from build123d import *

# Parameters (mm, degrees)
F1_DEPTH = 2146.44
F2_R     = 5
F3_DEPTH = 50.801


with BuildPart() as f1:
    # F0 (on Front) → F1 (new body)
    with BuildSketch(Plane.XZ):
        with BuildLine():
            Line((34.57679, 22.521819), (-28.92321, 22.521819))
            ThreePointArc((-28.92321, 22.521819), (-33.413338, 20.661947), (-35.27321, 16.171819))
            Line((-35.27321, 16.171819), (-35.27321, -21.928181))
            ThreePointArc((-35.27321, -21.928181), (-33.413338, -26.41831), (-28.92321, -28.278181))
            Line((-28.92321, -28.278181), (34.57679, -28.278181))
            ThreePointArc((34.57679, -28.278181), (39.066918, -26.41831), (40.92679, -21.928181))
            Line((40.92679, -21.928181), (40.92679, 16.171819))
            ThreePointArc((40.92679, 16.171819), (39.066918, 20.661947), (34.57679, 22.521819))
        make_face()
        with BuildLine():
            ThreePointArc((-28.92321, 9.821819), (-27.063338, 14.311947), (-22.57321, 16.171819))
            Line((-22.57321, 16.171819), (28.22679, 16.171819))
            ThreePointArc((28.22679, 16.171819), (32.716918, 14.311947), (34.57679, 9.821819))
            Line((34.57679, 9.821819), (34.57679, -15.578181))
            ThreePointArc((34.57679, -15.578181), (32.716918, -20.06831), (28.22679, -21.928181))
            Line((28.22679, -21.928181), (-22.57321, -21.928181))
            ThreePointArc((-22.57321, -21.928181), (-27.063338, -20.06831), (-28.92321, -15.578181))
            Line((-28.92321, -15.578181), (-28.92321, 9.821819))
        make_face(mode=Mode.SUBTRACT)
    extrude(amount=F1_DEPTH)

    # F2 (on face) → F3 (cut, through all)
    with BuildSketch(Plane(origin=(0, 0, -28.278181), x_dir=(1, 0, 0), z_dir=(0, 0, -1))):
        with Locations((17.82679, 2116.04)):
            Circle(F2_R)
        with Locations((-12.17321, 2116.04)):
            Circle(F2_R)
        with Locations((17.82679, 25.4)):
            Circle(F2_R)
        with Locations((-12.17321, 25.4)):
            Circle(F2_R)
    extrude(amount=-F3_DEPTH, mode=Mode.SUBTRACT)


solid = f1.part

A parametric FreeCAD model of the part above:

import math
import FreeCAD as App
import Part
import Sketcher
Q = App.Units.Quantity

doc = App.newDocument("Part")
body = doc.addObject("PartDesign::Body", "Body")

sketch1 = body.newObject("Sketcher::SketchObject", "Sketch")
sketch1.AttachmentSupport = (doc.getObject("XZ_Plane"), [""])
sketch1.MapMode = "FlatFace"
sketch1.addGeometry([
    Part.LineSegment(App.Vector(35, 23, 0), App.Vector(-29, 23, 0)),
    Part.ArcOfCircle(Part.Circle(App.Vector(-29, 16, 0), App.Vector(0, 0, 1), 6), math.radians(90), math.radians(180)),
    Part.LineSegment(App.Vector(-35, 16, 0), App.Vector(-35, -22, 0)),
    Part.ArcOfCircle(Part.Circle(App.Vector(-29, -22, 0), App.Vector(0, 0, 1), 6), math.radians(180), math.radians(270)),
    Part.LineSegment(App.Vector(-29, -28, 0), App.Vector(35, -28, 0)),
    Part.ArcOfCircle(Part.Circle(App.Vector(35, -22, 0), App.Vector(0, 0, 1), 6), math.radians(-90), math.radians(0)),
    Part.LineSegment(App.Vector(41, -22, 0), App.Vector(41, 16, 0)),
    Part.ArcOfCircle(Part.Circle(App.Vector(35, 16, 0), App.Vector(0, 0, 1), 6), math.radians(0), math.radians(90)),
    Part.LineSegment(App.Vector(-29, -16, 0), App.Vector(-29, 10, 0)),
    Part.ArcOfCircle(Part.Circle(App.Vector(-23, 10, 0), App.Vector(0, 0, 1), 6), math.radians(90), math.radians(180)),
    Part.LineSegment(App.Vector(-23, 16, 0), App.Vector(28, 16, 0)),
    Part.ArcOfCircle(Part.Circle(App.Vector(28, 10, 0), App.Vector(0, 0, 1), 6), math.radians(0), math.radians(90)),
    Part.LineSegment(App.Vector(35, 10, 0), App.Vector(35, -16, 0)),
    Part.ArcOfCircle(Part.Circle(App.Vector(28, -16, 0), App.Vector(0, 0, 1), 6), math.radians(-90), math.radians(0)),
    Part.LineSegment(App.Vector(28, -22, 0), App.Vector(-23, -22, 0)),
    Part.ArcOfCircle(Part.Circle(App.Vector(-23, -16, 0), App.Vector(0, 0, 1), 6), math.radians(180), math.radians(270)),
], False)
sketch1.addConstraint([
    Sketcher.Constraint("Tangent", 0, 2, 1, 1),
    Sketcher.Constraint("Tangent", 1, 2, 2, 1),
    Sketcher.Constraint("Tangent", 2, 2, 3, 1),
    Sketcher.Constraint("Tangent", 3, 2, 4, 1),
    Sketcher.Constraint("Tangent", 4, 2, 5, 1),
    Sketcher.Constraint("Tangent", 5, 2, 6, 1),
    Sketcher.Constraint("Tangent", 6, 2, 7, 1),
    Sketcher.Constraint("Tangent", 7, 2, 0, 1),
    Sketcher.Constraint("Tangent", 8, 2, 9, 2),
    Sketcher.Constraint("Tangent", 9, 1, 10, 1),
    Sketcher.Constraint("Tangent", 10, 2, 11, 2),
    Sketcher.Constraint("Tangent", 11, 1, 12, 1),
    Sketcher.Constraint("Tangent", 12, 2, 13, 2),
    Sketcher.Constraint("Tangent", 13, 1, 14, 1),
    Sketcher.Constraint("Tangent", 14, 2, 15, 2),
    Sketcher.Constraint("Tangent", 15, 1, 8, 1),
    Sketcher.Constraint("Horizontal", 0),
    Sketcher.Constraint("Vertical", 2),
    Sketcher.Constraint("Horizontal", 4),
    Sketcher.Constraint("Vertical", 6),
    Sketcher.Constraint("Vertical", 8),
    Sketcher.Constraint("Horizontal", 10),
    Sketcher.Constraint("Vertical", 12),
    Sketcher.Constraint("Horizontal", 14),
    Sketcher.Constraint("Equal", 1, 3),
    Sketcher.Constraint("Equal", 3, 5),
    Sketcher.Constraint("Equal", 5, 7),
    Sketcher.Constraint("Equal", 7, 9),
    Sketcher.Constraint("Equal", 9, 11),
    Sketcher.Constraint("Equal", 11, 13),
    Sketcher.Constraint("Equal", 13, 15),
    Sketcher.Constraint("Horizontal", 6, 2, 9, 1),
    Sketcher.Constraint("Horizontal", 5, 2, 13, 1),
    Sketcher.Constraint("Vertical", 3, 2, 8, 2),
    Sketcher.Constraint("Vertical", 7, 2, 11, 1),
    Sketcher.Constraint("DistanceX", 10, 1, 10, 2, Q("2 in")),
    Sketcher.Constraint("DistanceY", 8, 1, 8, 2, Q("1 in")),
    Sketcher.Constraint("Radius", 1, Q("0.25 in")),
    Sketcher.Constraint("DistanceX", 1, 3, -1, 1, Q("28.92321 mm")),
    Sketcher.Constraint("DistanceY", -1, 1, 1, 3, Q("16.171819 mm")),
])
pad1 = body.newObject("PartDesign::Pad", "Pad")
pad1.Profile = sketch1
pad1.Length = 2146.44

sketch2 = body.newObject("Sketcher::SketchObject", "Sketch001")
sketch2.AttachmentSupport = (doc.getObject("XY_Plane"), [""])
sketch2.MapMode = "FlatFace"
sketch2.AttachmentOffset = App.Placement(App.Vector(0, 0, -28.278181), App.Rotation())
sketch2.addGeometry([
    Part.Circle(App.Vector(18, -2116, 0), App.Vector(0, 0, 1), 5),
    Part.Circle(App.Vector(-12, -2116, 0), App.Vector(0, 0, 1), 5),
    Part.Circle(App.Vector(18, -25, 0), App.Vector(0, 0, 1), 5),
    Part.Circle(App.Vector(-12, -25, 0), App.Vector(0, 0, 1), 5),
], False)
sketch2.addConstraint([
    Sketcher.Constraint("Equal", 0, 1),
    Sketcher.Constraint("Equal", 1, 2),
    Sketcher.Constraint("Equal", 2, 3),
    Sketcher.Constraint("Horizontal", 0, 3, 1, 3),
    Sketcher.Constraint("Horizontal", 2, 3, 3, 3),
    Sketcher.Constraint("Vertical", 0, 3, 2, 3),
    Sketcher.Constraint("Vertical", 1, 3, 3, 3),
    Sketcher.Constraint("DistanceY", 2, 3, -1, 1, Q("1 in")),
    Sketcher.Constraint("Diameter", 0, Q("10 mm")),
    Sketcher.Constraint("DistanceY", 0, 3, -1, 1, Q("2116.04 mm")),
    Sketcher.Constraint("DistanceX", 1, 3, 0, 3, Q("30 mm")),
    Sketcher.Constraint("DistanceX", -1, 1, 0, 3, Q("17.82679 mm")),
])
pocket1 = body.newObject("PartDesign::Pocket", "Pocket")
pocket1.Profile = sketch2
pocket1.Type = "ThroughAll"
pocket1.Reversed = True

doc.recompute()
